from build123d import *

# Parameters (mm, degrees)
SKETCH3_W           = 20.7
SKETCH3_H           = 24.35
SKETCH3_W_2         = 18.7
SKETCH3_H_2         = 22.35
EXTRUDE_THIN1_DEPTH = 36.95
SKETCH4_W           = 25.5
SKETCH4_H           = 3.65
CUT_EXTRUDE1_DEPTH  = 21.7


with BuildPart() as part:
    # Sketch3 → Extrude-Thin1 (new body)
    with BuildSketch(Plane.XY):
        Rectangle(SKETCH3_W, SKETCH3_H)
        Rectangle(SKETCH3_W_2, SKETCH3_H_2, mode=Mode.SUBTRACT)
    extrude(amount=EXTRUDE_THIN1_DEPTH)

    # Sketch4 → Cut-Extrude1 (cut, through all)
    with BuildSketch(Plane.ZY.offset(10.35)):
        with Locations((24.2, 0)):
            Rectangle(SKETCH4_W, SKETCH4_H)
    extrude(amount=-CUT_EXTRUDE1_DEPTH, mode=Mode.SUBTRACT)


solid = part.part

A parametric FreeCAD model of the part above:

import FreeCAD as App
import Part
import Sketcher
from FreeCAD import Vector
Q = App.Units.Quantity

doc = App.newDocument("Part")
params = doc.addObject("Spreadsheet::Sheet", "Params")
for row, (alias, value) in enumerate([
    ("sketch1_width", "20.7 mm"),
    ("sketch1_width2", "18.7 mm"),
    ("sketch1_height", "24.35 mm"),
    ("pad1_length", "36.95 mm"),
    ("sketch2_height", "25.5 mm"),
    ("sketch2_width", "3.65 mm"),
], start=1):
    params.set(f"A{row}", alias)
    params.set(f"B{row}", "=" + value)
    params.setAlias(f"B{row}", alias)

body = doc.addObject("PartDesign::Body", "Body")

sketch1 = body.newObject("Sketcher::SketchObject", "Sketch")
sketch1.AttachmentSupport = (doc.getObject("XY_Plane"), [""])
sketch1.MapMode = "FlatFace"
sketch1.addGeometry([
    Part.LineSegment(Vector(-10, 12, 0), Vector(-10, -12, 0)),
    Part.LineSegment(Vector(-10, -12, 0), Vector(10, -12, 0)),
    Part.LineSegment(Vector(10, -12, 0), Vector(10, 12, 0)),
    Part.LineSegment(Vector(10, 12, 0), Vector(-10, 12, 0)),
    Part.LineSegment(Vector(9, -11, 0), Vector(-9, -11, 0)),
    Part.LineSegment(Vector(-9, -11, 0), Vector(-9, 11, 0)),
    Part.LineSegment(Vector(-9, 11, 0), Vector(9, 11, 0)),
    Part.LineSegment(Vector(9, 11, 0), Vector(9, -11, 0)),
], False)
sketch1.addConstraint([
    Sketcher.Constraint("Coincident", 0, 2, 1, 1),
    Sketcher.Constraint("Coincident", 1, 2, 2, 1),
    Sketcher.Constraint("Coincident", 2, 2, 3, 1),
    Sketcher.Constraint("Coincident", 3, 2, 0, 1),
    Sketcher.Constraint("Coincident", 4, 2, 5, 1),
    Sketcher.Constraint("Coincident", 5, 2, 6, 1),
    Sketcher.Constraint("Coincident", 6, 2, 7, 1),
    Sketcher.Constraint("Coincident", 7, 2, 4, 1),
    Sketcher.Constraint("Vertical", 0),
    Sketcher.Constraint("Horizontal", 1),
    Sketcher.Constraint("Vertical", 2),
    Sketcher.Constraint("Horizontal", 3),
    Sketcher.Constraint("Horizontal", 4),
    Sketcher.Constraint("Vertical", 5),
    Sketcher.Constraint("Horizontal", 6),
    Sketcher.Constraint("Vertical", 7),
    Sketcher.Constraint("Symmetric", 0, 2, 2, 2, -1, 1),
    Sketcher.Constraint("Symmetric", 4, 2, 6, 2, -1, 1),
    Sketcher.Constraint("DistanceX", 1, 1, 1, 2, Q("20.7 mm")),
    Sketcher.Constraint("DistanceX", 4, 2, 4, 1, Q("18.7 mm")),
    Sketcher.Constraint("DistanceY", 0, 2, 4, 2, Q("1 mm")),
    Sketcher.Constraint("DistanceY", 0, 2, 0, 1, Q("24.35 mm")),
])
sketch1.setExpression("Constraints[18]", "Params.sketch1_width")
sketch1.setExpression("Constraints[19]", "Params.sketch1_width2")
sketch1.setExpression("Constraints[21]", "Params.sketch1_height")
pad1 = body.newObject("PartDesign::Pad", "Pad")
pad1.Profile = sketch1
pad1.setExpression("Length", "Params.pad1_length")

sketch2 = body.newObject("Sketcher::SketchObject", "Sketch001")
sketch2.AttachmentSupport = (doc.getObject("YZ_Plane"), [""])
sketch2.MapMode = "FlatFace"
sketch2.AttachmentOffset = App.Placement(Vector(0, 0, -10.35), App.Rotation())
sketch2.addGeometry([
    Part.LineSegment(Vector(1.8, 11.4, 0), Vector(-1.8, 11.4, 0)),
    Part.LineSegment(Vector(-1.8, 11.4, 0), Vector(-1.8, 37, 0)),
    Part.LineSegment(Vector(-1.8, 37, 0), Vector(1.8, 37, 0)),
    Part.LineSegment(Vector(1.8, 37, 0), Vector(1.8, 11.4, 0)),
], False)
sketch2.addConstraint([
    Sketcher.Constraint("Coincident", 0, 2, 1, 1),
    Sketcher.Constraint("Coincident", 1, 2, 2, 1),
    Sketcher.Constraint("Coincident", 2, 2, 3, 1),
    Sketcher.Constraint("Coincident", 3, 2, 0, 1),
    Sketcher.Constraint("Horizontal", 0),
    Sketcher.Constraint("Vertical", 1),
    Sketcher.Constraint("Horizontal", 2),
    Sketcher.Constraint("Vertical", 3),
    Sketcher.Constraint("DistanceY", 1, 1, 1, 2, Q("25.5 mm")),
    Sketcher.Constraint("DistanceX", 0, 2, 0, 1, Q("3.65 mm")),
    Sketcher.Constraint("DistanceY", -1, 1, 0, 2, Q("11.45 mm")),
    Sketcher.Constraint("DistanceX", 0, 2, -1, 1, Q("1.825 mm")),
])
sketch2.setExpression("Constraints[8]", "Params.sketch2_height")
sketch2.setExpression("Constraints[9]", "Params.sketch2_width")
pocket1 = body.newObject("PartDesign::Pocket", "Pocket")
pocket1.Profile = sketch2
pocket1.Type = "ThroughAll"
pocket1.Reversed = True

doc.recompute()
